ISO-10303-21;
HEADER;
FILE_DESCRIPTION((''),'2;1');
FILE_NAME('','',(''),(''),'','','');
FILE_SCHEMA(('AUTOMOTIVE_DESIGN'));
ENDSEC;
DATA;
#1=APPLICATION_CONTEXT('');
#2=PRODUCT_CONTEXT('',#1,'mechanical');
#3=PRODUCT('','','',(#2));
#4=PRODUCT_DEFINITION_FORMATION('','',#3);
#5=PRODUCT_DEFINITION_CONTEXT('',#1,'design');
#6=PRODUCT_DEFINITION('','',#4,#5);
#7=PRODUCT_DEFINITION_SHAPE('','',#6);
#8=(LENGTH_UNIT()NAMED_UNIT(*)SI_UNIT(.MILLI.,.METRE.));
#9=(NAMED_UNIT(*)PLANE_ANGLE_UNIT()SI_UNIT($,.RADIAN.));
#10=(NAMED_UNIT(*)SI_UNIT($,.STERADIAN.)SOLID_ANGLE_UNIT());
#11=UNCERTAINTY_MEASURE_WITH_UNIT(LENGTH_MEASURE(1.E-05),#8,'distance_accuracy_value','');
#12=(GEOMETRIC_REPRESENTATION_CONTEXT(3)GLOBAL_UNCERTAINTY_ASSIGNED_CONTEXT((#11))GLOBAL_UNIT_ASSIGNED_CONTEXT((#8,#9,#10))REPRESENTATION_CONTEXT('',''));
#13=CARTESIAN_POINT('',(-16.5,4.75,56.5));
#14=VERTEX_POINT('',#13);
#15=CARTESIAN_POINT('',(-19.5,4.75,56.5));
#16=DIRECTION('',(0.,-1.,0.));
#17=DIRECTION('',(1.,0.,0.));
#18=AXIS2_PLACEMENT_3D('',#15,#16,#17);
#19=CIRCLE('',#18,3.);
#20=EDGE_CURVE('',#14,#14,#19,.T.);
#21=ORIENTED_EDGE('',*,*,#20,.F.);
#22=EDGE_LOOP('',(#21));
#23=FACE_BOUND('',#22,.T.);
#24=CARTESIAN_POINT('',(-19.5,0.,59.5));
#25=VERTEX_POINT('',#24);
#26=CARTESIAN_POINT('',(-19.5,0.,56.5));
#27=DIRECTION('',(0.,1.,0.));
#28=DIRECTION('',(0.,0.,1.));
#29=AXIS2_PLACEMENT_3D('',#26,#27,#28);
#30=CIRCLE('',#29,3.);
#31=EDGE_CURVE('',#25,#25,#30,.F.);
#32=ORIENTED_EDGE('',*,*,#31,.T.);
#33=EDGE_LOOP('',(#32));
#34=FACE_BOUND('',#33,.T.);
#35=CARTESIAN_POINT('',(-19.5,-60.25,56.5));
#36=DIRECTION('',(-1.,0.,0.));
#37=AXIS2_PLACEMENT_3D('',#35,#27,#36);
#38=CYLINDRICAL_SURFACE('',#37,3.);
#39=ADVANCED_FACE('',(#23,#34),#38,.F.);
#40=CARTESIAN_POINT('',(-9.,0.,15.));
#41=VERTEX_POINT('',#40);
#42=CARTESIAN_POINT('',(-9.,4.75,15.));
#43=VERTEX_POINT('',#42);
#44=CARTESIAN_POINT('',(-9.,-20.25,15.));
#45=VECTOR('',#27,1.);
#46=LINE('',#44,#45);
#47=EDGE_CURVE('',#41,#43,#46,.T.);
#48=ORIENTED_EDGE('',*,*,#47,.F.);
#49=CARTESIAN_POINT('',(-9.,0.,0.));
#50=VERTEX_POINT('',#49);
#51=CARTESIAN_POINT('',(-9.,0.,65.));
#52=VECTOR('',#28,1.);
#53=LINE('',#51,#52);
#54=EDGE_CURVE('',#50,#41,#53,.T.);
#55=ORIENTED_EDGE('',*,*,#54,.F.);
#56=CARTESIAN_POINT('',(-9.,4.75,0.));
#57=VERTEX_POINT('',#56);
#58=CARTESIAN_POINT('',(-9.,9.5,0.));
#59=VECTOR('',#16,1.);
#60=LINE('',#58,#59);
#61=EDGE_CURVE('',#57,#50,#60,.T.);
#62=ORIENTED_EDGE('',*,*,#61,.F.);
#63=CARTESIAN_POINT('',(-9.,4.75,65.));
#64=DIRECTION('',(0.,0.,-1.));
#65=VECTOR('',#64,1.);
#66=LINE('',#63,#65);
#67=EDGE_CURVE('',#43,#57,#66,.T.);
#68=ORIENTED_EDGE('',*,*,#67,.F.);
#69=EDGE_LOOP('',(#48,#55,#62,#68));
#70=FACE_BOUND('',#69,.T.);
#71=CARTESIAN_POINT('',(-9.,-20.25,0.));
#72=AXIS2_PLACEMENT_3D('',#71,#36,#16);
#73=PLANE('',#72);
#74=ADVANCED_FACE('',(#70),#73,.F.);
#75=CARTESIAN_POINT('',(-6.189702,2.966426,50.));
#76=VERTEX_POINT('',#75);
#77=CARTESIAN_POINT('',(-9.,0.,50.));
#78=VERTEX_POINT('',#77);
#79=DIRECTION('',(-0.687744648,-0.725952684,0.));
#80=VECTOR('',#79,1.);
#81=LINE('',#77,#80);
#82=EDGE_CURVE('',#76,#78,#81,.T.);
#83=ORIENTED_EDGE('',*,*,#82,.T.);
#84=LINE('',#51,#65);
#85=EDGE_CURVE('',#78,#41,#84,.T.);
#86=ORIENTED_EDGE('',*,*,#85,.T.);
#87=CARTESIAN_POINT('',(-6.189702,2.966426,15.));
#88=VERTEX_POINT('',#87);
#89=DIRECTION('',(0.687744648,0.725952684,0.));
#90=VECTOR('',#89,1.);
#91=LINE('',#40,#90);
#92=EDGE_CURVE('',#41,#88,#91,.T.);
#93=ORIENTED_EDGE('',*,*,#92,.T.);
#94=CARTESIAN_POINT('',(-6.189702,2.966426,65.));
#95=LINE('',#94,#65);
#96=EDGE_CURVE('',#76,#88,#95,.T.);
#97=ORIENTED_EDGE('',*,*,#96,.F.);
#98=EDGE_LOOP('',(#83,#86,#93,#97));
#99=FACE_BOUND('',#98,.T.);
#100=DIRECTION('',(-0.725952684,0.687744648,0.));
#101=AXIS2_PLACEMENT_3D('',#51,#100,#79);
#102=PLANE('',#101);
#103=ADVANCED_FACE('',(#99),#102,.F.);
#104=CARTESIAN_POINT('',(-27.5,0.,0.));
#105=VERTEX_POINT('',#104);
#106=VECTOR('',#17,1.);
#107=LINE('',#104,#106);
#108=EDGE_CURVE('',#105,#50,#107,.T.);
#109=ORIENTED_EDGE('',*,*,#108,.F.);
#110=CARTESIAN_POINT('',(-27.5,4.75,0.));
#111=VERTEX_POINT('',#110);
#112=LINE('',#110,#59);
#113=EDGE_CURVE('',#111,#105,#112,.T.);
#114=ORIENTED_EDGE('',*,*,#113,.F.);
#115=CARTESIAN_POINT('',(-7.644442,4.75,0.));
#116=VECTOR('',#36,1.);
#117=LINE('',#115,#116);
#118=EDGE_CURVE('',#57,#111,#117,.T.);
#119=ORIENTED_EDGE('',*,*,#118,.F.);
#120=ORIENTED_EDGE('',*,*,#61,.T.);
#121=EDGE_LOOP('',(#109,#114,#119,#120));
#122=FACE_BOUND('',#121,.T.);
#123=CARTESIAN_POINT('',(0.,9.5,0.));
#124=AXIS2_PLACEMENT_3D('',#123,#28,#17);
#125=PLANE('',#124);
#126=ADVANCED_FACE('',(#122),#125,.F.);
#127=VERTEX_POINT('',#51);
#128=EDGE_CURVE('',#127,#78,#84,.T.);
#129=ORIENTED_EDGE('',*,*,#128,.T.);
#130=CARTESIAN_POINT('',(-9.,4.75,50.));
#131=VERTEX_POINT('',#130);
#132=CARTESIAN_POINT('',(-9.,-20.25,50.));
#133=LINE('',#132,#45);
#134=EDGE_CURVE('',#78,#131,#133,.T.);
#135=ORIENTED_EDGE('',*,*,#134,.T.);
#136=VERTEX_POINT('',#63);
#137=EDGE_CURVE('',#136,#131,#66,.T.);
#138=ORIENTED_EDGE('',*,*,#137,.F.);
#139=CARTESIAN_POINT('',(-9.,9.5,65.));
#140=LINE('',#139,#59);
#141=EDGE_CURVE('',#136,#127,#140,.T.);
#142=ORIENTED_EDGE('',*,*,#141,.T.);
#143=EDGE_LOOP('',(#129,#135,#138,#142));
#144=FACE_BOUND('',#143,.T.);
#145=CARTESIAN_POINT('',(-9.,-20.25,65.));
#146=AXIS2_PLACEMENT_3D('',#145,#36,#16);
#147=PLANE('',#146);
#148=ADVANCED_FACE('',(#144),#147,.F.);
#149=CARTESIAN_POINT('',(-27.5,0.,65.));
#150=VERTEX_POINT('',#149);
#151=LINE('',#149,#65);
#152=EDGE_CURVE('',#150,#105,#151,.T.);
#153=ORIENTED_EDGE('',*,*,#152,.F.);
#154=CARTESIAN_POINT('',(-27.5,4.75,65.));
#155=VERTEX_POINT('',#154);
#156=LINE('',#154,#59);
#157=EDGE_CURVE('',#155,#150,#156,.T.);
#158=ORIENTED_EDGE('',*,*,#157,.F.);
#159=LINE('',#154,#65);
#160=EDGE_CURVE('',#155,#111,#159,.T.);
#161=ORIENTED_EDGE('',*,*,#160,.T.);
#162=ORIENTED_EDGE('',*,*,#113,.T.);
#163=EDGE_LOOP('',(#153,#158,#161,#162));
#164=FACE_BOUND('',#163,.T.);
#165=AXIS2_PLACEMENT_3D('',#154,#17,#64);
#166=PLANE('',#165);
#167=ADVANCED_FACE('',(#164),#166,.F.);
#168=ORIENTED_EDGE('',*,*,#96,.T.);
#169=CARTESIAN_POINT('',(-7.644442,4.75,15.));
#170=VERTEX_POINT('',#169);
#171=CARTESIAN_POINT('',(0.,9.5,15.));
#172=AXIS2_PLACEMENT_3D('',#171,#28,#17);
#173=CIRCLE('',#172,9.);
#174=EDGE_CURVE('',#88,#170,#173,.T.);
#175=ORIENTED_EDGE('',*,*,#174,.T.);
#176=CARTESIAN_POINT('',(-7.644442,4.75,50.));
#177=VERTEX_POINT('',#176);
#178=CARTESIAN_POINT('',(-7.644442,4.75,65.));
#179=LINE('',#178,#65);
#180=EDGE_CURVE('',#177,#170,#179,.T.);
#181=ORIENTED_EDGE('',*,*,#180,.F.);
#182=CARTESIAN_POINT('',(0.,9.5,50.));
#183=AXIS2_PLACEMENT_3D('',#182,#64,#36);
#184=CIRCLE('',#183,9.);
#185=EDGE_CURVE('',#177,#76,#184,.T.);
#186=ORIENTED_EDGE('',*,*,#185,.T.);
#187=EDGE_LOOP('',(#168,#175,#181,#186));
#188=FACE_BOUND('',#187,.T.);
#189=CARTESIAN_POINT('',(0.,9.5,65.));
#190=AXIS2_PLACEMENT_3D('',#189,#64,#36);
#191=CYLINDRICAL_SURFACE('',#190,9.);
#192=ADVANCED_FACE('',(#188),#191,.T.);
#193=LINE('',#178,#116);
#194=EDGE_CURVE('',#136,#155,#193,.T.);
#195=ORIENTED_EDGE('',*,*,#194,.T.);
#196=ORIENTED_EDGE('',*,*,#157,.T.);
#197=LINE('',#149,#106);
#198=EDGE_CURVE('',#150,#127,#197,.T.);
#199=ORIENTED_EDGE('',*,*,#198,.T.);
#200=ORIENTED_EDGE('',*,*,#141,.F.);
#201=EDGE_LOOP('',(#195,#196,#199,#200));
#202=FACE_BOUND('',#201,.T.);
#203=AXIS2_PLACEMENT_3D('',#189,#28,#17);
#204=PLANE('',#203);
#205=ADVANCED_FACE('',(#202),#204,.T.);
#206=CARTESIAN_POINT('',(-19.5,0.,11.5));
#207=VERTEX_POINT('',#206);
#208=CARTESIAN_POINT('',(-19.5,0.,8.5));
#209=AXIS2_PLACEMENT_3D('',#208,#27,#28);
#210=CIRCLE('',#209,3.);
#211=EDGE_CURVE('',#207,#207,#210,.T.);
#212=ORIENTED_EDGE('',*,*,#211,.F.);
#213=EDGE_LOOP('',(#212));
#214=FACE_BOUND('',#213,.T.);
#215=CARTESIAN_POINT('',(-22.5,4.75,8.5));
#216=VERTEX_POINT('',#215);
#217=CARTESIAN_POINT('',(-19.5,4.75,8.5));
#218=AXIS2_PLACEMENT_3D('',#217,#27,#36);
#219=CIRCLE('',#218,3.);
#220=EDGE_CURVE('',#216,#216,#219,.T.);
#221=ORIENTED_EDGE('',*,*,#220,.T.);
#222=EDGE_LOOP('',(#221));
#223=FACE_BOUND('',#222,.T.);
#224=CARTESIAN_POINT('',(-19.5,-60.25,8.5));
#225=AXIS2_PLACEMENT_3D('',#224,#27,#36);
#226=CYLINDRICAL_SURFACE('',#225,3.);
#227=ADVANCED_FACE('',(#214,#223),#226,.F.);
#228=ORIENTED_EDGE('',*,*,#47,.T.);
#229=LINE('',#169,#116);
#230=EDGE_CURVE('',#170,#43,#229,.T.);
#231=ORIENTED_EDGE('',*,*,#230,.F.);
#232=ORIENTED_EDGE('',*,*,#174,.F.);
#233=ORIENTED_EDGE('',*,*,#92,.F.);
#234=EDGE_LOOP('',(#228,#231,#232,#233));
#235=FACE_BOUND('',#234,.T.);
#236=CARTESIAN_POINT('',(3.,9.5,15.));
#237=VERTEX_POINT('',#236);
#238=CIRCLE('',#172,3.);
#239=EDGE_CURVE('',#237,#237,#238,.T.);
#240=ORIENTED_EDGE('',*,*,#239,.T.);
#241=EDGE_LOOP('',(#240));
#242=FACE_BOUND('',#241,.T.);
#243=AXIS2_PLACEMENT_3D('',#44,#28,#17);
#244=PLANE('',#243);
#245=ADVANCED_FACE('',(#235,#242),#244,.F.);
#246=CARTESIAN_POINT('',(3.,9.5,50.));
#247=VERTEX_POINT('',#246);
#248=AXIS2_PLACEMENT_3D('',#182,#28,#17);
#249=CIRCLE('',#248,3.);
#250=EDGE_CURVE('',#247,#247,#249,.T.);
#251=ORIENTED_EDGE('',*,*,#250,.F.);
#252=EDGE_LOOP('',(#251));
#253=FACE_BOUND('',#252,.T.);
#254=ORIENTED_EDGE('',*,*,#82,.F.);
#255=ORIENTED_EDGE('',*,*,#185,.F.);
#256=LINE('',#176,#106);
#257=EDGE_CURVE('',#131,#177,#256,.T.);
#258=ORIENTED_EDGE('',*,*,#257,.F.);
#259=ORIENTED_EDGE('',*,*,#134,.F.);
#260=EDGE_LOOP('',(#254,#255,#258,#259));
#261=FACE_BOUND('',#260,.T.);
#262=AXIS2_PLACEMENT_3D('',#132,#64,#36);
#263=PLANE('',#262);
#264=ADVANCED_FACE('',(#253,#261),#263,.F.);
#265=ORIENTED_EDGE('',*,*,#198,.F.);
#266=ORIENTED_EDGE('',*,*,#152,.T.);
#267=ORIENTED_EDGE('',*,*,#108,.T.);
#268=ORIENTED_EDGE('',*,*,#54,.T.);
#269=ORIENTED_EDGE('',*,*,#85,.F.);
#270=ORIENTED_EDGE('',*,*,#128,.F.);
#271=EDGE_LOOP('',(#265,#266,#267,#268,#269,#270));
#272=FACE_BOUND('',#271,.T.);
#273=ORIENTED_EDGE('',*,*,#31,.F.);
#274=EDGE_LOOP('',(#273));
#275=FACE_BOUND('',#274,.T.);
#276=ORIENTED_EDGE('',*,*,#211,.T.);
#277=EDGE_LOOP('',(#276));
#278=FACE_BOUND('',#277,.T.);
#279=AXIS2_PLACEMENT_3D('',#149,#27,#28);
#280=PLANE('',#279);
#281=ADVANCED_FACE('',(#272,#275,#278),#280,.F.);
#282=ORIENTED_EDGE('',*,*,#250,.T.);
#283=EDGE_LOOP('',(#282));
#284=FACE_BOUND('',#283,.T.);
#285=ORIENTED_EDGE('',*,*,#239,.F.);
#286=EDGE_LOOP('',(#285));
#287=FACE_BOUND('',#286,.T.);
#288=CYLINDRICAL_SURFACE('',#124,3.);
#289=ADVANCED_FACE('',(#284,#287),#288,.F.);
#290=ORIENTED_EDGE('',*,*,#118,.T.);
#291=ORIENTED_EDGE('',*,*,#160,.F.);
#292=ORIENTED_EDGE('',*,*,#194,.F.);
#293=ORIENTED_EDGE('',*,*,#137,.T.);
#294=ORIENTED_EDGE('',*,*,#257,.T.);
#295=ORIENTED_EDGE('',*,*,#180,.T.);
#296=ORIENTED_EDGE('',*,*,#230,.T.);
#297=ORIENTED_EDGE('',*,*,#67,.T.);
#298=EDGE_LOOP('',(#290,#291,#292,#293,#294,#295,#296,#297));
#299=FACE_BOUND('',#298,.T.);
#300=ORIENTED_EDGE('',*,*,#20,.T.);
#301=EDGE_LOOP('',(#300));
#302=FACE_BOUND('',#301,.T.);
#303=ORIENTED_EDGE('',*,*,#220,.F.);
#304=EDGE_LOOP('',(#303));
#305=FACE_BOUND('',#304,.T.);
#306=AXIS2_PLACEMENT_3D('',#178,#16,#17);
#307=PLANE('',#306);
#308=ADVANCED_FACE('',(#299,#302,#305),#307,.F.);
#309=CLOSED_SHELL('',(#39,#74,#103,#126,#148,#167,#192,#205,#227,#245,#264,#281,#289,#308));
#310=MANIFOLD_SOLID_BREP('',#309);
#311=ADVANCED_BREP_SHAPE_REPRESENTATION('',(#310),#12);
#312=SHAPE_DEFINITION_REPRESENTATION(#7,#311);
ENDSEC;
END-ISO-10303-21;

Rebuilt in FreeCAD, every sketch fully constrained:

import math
import FreeCAD as App
import Part
import Sketcher

V = App.Vector


def add_polygon(sketch, points):
    """Adds a closed chain of lines whose ends are joined by coincident constraints."""
    first, n = sketch.GeometryCount, len(points)
    for a, b in zip(points, points[1:] + points[:1]):
        sketch.addGeometry(Part.LineSegment(App.Vector(*a, 0), App.Vector(*b, 0)), False)
    for i in range(n):
        sketch.addConstraint(Sketcher.Constraint("Coincident", first + i, 2, first + (i + 1) % n, 1))

doc = App.newDocument("Part")
body = doc.addObject("PartDesign::Body", "Body")

# Sketch on XY plane
sketch1 = doc.addObject("Sketcher::SketchObject", "Sketch")
body.addObject(sketch1)
sketch1.AttachmentSupport = (doc.XY_Plane, [""])
sketch1.MapMode = "FlatFace"
sketch1.addGeometry([
    Part.LineSegment(V(-27.5, 4.8, 0), V(-27.5, 0, 0)),  # 0
    Part.LineSegment(V(-27.5, 0, 0), V(-9, 0, 0)),  # 1
    Part.LineSegment(V(-9, 0, 0), V(-6.2, 3, 0)),  # 2
    Part.ArcOfCircle(Part.Circle(V(0, 9.5, 0), V(0, 0, 1), 9), math.radians(-133), math.radians(212)),  # 3
    Part.LineSegment(V(-7.6, 4.8, 0), V(-27.5, 4.8, 0)),  # 4
], False)
sketch1.addConstraint([
    Sketcher.Constraint("Coincident", 0, 2, 1, 1),
    Sketcher.Constraint("Coincident", 1, 2, 2, 1),
    Sketcher.Constraint("Coincident", 2, 2, 3, 1),
    Sketcher.Constraint("Coincident", 3, 2, 4, 1),
    Sketcher.Constraint("Coincident", 4, 2, 0, 1),
    Sketcher.Constraint("Vertical", 0),
    Sketcher.Constraint("Horizontal", 1),
    Sketcher.Constraint("Horizontal", 4),
    Sketcher.Constraint("PointOnObject", 3, 3, -2),
    Sketcher.Constraint("PointOnObject", 0, 2, -1),
    Sketcher.Constraint("Radius", 3, 9.0),
    Sketcher.Constraint("DistanceX", 1, 1, 1, 2, 18.5),
    Sketcher.Constraint("DistanceX", 1, 2, -1, 1, 9.0),
    Sketcher.Constraint("DistanceY", 0, 2, 0, 1, 4.75),
    Sketcher.Constraint("DistanceY", -1, 1, 3, 3, 9.5),
    Sketcher.Constraint("DistanceX", 2, 2, -1, 1, 6.189702),
])
pad1 = doc.addObject("PartDesign::Pad", "Pad")
body.addObject(pad1)
pad1.Profile = sketch1
pad1.Length = 65

# Sketch on XZ plane
sketch2 = doc.addObject("Sketcher::SketchObject", "Sketch001")
body.addObject(sketch2)
sketch2.AttachmentSupport = (doc.XZ_Plane, [""])
sketch2.MapMode = "FlatFace"
sketch2.AttachmentOffset = App.Placement(V(0, 0, -4.75), App.Rotation())
sketch2.addGeometry([
    Part.Circle(V(-19.5, 8.5, 0), V(0, 0, 1), 3),
    Part.Circle(V(-19.5, 56.5, 0), V(0, 0, 1), 3),
], False)
sketch2.addConstraint([
    Sketcher.Constraint("Equal", 0, 1),
    Sketcher.Constraint("Vertical", 0, 3, 1, 3),
    Sketcher.Constraint("Diameter", 0, 6.0),
    Sketcher.Constraint("DistanceY", 0, 3, 1, 3, 48.0),
    Sketcher.Constraint("DistanceX", 0, 3, -1, 1, 19.5),
    Sketcher.Constraint("DistanceY", -1, 1, 0, 3, 8.5),
])
pocket1 = doc.addObject("PartDesign::Pocket", "Pocket")
body.addObject(pocket1)
pocket1.Profile = sketch2
pocket1.Length = 65
pocket1.Reversed = True

# Sketch on XZ plane
sketch3 = doc.addObject("Sketcher::SketchObject", "Sketch002")
body.addObject(sketch3)
sketch3.AttachmentSupport = (doc.XZ_Plane, [""])
sketch3.MapMode = "FlatFace"
sketch3.AttachmentOffset = App.Placement(V(0, 0, -4.75), App.Rotation())
add_polygon(sketch3, [(-9, 0), (-9, 15), (9, 15), (9, 0)])  # lines 0-3
add_polygon(sketch3, [(-9, 50), (-9, 65), (9, 65), (9, 50)])  # lines 4-7
sketch3.addConstraint([
    Sketcher.Constraint("Vertical", 0),
    Sketcher.Constraint("Horizontal", 1),
    Sketcher.Constraint("Vertical", 2),
    Sketcher.Constraint("Horizontal", 3),
    Sketcher.Constraint("Vertical", 4),
    Sketcher.Constraint("Horizontal", 5),
    Sketcher.Constraint("Vertical", 6),
    Sketcher.Constraint("Horizontal", 7),
    Sketcher.Constraint("Symmetric", 2, 2, 3, 2, -1, 1),
    Sketcher.Constraint("Vertical", 3, 2, 4, 2),
    Sketcher.Constraint("Vertical", 2, 2, 5, 2),
    Sketcher.Constraint("Equal", 2, 4),
    Sketcher.Constraint("DistanceX", 1, 1, 1, 2, 18.0),
    Sketcher.Constraint("DistanceY", 0, 1, 0, 2, 15.0),
    Sketcher.Constraint("DistanceY", -1, 1, 4, 2, 65.0),
])
pocket2 = doc.addObject("PartDesign::Pocket", "Pocket001")
body.addObject(pocket2)
pocket2.Profile = sketch3
pocket2.Length = 50
pocket2.Midplane = True

# Sketch on XY plane
sketch4 = doc.addObject("Sketcher::SketchObject", "Sketch003")
body.addObject(sketch4)
sketch4.AttachmentSupport = (doc.XY_Plane, [""])
sketch4.MapMode = "FlatFace"
sketch4.AttachmentOffset = App.Placement(V(0, 0, 50), App.Rotation())
sketch4.addGeometry(Part.Circle(V(0, 9.5, 0), V(0, 0, 1), 3), False)
sketch4.addConstraint([
    Sketcher.Constraint("PointOnObject", 0, 3, -2),
    Sketcher.Constraint("Diameter", 0, 6.0),
    Sketcher.Constraint("DistanceY", -1, 1, 0, 3, 9.5),
])
pocket3 = doc.addObject("PartDesign::Pocket", "Pocket002")
body.addObject(pocket3)
pocket3.Profile = sketch4
pocket3.Length = 50

doc.recompute()
